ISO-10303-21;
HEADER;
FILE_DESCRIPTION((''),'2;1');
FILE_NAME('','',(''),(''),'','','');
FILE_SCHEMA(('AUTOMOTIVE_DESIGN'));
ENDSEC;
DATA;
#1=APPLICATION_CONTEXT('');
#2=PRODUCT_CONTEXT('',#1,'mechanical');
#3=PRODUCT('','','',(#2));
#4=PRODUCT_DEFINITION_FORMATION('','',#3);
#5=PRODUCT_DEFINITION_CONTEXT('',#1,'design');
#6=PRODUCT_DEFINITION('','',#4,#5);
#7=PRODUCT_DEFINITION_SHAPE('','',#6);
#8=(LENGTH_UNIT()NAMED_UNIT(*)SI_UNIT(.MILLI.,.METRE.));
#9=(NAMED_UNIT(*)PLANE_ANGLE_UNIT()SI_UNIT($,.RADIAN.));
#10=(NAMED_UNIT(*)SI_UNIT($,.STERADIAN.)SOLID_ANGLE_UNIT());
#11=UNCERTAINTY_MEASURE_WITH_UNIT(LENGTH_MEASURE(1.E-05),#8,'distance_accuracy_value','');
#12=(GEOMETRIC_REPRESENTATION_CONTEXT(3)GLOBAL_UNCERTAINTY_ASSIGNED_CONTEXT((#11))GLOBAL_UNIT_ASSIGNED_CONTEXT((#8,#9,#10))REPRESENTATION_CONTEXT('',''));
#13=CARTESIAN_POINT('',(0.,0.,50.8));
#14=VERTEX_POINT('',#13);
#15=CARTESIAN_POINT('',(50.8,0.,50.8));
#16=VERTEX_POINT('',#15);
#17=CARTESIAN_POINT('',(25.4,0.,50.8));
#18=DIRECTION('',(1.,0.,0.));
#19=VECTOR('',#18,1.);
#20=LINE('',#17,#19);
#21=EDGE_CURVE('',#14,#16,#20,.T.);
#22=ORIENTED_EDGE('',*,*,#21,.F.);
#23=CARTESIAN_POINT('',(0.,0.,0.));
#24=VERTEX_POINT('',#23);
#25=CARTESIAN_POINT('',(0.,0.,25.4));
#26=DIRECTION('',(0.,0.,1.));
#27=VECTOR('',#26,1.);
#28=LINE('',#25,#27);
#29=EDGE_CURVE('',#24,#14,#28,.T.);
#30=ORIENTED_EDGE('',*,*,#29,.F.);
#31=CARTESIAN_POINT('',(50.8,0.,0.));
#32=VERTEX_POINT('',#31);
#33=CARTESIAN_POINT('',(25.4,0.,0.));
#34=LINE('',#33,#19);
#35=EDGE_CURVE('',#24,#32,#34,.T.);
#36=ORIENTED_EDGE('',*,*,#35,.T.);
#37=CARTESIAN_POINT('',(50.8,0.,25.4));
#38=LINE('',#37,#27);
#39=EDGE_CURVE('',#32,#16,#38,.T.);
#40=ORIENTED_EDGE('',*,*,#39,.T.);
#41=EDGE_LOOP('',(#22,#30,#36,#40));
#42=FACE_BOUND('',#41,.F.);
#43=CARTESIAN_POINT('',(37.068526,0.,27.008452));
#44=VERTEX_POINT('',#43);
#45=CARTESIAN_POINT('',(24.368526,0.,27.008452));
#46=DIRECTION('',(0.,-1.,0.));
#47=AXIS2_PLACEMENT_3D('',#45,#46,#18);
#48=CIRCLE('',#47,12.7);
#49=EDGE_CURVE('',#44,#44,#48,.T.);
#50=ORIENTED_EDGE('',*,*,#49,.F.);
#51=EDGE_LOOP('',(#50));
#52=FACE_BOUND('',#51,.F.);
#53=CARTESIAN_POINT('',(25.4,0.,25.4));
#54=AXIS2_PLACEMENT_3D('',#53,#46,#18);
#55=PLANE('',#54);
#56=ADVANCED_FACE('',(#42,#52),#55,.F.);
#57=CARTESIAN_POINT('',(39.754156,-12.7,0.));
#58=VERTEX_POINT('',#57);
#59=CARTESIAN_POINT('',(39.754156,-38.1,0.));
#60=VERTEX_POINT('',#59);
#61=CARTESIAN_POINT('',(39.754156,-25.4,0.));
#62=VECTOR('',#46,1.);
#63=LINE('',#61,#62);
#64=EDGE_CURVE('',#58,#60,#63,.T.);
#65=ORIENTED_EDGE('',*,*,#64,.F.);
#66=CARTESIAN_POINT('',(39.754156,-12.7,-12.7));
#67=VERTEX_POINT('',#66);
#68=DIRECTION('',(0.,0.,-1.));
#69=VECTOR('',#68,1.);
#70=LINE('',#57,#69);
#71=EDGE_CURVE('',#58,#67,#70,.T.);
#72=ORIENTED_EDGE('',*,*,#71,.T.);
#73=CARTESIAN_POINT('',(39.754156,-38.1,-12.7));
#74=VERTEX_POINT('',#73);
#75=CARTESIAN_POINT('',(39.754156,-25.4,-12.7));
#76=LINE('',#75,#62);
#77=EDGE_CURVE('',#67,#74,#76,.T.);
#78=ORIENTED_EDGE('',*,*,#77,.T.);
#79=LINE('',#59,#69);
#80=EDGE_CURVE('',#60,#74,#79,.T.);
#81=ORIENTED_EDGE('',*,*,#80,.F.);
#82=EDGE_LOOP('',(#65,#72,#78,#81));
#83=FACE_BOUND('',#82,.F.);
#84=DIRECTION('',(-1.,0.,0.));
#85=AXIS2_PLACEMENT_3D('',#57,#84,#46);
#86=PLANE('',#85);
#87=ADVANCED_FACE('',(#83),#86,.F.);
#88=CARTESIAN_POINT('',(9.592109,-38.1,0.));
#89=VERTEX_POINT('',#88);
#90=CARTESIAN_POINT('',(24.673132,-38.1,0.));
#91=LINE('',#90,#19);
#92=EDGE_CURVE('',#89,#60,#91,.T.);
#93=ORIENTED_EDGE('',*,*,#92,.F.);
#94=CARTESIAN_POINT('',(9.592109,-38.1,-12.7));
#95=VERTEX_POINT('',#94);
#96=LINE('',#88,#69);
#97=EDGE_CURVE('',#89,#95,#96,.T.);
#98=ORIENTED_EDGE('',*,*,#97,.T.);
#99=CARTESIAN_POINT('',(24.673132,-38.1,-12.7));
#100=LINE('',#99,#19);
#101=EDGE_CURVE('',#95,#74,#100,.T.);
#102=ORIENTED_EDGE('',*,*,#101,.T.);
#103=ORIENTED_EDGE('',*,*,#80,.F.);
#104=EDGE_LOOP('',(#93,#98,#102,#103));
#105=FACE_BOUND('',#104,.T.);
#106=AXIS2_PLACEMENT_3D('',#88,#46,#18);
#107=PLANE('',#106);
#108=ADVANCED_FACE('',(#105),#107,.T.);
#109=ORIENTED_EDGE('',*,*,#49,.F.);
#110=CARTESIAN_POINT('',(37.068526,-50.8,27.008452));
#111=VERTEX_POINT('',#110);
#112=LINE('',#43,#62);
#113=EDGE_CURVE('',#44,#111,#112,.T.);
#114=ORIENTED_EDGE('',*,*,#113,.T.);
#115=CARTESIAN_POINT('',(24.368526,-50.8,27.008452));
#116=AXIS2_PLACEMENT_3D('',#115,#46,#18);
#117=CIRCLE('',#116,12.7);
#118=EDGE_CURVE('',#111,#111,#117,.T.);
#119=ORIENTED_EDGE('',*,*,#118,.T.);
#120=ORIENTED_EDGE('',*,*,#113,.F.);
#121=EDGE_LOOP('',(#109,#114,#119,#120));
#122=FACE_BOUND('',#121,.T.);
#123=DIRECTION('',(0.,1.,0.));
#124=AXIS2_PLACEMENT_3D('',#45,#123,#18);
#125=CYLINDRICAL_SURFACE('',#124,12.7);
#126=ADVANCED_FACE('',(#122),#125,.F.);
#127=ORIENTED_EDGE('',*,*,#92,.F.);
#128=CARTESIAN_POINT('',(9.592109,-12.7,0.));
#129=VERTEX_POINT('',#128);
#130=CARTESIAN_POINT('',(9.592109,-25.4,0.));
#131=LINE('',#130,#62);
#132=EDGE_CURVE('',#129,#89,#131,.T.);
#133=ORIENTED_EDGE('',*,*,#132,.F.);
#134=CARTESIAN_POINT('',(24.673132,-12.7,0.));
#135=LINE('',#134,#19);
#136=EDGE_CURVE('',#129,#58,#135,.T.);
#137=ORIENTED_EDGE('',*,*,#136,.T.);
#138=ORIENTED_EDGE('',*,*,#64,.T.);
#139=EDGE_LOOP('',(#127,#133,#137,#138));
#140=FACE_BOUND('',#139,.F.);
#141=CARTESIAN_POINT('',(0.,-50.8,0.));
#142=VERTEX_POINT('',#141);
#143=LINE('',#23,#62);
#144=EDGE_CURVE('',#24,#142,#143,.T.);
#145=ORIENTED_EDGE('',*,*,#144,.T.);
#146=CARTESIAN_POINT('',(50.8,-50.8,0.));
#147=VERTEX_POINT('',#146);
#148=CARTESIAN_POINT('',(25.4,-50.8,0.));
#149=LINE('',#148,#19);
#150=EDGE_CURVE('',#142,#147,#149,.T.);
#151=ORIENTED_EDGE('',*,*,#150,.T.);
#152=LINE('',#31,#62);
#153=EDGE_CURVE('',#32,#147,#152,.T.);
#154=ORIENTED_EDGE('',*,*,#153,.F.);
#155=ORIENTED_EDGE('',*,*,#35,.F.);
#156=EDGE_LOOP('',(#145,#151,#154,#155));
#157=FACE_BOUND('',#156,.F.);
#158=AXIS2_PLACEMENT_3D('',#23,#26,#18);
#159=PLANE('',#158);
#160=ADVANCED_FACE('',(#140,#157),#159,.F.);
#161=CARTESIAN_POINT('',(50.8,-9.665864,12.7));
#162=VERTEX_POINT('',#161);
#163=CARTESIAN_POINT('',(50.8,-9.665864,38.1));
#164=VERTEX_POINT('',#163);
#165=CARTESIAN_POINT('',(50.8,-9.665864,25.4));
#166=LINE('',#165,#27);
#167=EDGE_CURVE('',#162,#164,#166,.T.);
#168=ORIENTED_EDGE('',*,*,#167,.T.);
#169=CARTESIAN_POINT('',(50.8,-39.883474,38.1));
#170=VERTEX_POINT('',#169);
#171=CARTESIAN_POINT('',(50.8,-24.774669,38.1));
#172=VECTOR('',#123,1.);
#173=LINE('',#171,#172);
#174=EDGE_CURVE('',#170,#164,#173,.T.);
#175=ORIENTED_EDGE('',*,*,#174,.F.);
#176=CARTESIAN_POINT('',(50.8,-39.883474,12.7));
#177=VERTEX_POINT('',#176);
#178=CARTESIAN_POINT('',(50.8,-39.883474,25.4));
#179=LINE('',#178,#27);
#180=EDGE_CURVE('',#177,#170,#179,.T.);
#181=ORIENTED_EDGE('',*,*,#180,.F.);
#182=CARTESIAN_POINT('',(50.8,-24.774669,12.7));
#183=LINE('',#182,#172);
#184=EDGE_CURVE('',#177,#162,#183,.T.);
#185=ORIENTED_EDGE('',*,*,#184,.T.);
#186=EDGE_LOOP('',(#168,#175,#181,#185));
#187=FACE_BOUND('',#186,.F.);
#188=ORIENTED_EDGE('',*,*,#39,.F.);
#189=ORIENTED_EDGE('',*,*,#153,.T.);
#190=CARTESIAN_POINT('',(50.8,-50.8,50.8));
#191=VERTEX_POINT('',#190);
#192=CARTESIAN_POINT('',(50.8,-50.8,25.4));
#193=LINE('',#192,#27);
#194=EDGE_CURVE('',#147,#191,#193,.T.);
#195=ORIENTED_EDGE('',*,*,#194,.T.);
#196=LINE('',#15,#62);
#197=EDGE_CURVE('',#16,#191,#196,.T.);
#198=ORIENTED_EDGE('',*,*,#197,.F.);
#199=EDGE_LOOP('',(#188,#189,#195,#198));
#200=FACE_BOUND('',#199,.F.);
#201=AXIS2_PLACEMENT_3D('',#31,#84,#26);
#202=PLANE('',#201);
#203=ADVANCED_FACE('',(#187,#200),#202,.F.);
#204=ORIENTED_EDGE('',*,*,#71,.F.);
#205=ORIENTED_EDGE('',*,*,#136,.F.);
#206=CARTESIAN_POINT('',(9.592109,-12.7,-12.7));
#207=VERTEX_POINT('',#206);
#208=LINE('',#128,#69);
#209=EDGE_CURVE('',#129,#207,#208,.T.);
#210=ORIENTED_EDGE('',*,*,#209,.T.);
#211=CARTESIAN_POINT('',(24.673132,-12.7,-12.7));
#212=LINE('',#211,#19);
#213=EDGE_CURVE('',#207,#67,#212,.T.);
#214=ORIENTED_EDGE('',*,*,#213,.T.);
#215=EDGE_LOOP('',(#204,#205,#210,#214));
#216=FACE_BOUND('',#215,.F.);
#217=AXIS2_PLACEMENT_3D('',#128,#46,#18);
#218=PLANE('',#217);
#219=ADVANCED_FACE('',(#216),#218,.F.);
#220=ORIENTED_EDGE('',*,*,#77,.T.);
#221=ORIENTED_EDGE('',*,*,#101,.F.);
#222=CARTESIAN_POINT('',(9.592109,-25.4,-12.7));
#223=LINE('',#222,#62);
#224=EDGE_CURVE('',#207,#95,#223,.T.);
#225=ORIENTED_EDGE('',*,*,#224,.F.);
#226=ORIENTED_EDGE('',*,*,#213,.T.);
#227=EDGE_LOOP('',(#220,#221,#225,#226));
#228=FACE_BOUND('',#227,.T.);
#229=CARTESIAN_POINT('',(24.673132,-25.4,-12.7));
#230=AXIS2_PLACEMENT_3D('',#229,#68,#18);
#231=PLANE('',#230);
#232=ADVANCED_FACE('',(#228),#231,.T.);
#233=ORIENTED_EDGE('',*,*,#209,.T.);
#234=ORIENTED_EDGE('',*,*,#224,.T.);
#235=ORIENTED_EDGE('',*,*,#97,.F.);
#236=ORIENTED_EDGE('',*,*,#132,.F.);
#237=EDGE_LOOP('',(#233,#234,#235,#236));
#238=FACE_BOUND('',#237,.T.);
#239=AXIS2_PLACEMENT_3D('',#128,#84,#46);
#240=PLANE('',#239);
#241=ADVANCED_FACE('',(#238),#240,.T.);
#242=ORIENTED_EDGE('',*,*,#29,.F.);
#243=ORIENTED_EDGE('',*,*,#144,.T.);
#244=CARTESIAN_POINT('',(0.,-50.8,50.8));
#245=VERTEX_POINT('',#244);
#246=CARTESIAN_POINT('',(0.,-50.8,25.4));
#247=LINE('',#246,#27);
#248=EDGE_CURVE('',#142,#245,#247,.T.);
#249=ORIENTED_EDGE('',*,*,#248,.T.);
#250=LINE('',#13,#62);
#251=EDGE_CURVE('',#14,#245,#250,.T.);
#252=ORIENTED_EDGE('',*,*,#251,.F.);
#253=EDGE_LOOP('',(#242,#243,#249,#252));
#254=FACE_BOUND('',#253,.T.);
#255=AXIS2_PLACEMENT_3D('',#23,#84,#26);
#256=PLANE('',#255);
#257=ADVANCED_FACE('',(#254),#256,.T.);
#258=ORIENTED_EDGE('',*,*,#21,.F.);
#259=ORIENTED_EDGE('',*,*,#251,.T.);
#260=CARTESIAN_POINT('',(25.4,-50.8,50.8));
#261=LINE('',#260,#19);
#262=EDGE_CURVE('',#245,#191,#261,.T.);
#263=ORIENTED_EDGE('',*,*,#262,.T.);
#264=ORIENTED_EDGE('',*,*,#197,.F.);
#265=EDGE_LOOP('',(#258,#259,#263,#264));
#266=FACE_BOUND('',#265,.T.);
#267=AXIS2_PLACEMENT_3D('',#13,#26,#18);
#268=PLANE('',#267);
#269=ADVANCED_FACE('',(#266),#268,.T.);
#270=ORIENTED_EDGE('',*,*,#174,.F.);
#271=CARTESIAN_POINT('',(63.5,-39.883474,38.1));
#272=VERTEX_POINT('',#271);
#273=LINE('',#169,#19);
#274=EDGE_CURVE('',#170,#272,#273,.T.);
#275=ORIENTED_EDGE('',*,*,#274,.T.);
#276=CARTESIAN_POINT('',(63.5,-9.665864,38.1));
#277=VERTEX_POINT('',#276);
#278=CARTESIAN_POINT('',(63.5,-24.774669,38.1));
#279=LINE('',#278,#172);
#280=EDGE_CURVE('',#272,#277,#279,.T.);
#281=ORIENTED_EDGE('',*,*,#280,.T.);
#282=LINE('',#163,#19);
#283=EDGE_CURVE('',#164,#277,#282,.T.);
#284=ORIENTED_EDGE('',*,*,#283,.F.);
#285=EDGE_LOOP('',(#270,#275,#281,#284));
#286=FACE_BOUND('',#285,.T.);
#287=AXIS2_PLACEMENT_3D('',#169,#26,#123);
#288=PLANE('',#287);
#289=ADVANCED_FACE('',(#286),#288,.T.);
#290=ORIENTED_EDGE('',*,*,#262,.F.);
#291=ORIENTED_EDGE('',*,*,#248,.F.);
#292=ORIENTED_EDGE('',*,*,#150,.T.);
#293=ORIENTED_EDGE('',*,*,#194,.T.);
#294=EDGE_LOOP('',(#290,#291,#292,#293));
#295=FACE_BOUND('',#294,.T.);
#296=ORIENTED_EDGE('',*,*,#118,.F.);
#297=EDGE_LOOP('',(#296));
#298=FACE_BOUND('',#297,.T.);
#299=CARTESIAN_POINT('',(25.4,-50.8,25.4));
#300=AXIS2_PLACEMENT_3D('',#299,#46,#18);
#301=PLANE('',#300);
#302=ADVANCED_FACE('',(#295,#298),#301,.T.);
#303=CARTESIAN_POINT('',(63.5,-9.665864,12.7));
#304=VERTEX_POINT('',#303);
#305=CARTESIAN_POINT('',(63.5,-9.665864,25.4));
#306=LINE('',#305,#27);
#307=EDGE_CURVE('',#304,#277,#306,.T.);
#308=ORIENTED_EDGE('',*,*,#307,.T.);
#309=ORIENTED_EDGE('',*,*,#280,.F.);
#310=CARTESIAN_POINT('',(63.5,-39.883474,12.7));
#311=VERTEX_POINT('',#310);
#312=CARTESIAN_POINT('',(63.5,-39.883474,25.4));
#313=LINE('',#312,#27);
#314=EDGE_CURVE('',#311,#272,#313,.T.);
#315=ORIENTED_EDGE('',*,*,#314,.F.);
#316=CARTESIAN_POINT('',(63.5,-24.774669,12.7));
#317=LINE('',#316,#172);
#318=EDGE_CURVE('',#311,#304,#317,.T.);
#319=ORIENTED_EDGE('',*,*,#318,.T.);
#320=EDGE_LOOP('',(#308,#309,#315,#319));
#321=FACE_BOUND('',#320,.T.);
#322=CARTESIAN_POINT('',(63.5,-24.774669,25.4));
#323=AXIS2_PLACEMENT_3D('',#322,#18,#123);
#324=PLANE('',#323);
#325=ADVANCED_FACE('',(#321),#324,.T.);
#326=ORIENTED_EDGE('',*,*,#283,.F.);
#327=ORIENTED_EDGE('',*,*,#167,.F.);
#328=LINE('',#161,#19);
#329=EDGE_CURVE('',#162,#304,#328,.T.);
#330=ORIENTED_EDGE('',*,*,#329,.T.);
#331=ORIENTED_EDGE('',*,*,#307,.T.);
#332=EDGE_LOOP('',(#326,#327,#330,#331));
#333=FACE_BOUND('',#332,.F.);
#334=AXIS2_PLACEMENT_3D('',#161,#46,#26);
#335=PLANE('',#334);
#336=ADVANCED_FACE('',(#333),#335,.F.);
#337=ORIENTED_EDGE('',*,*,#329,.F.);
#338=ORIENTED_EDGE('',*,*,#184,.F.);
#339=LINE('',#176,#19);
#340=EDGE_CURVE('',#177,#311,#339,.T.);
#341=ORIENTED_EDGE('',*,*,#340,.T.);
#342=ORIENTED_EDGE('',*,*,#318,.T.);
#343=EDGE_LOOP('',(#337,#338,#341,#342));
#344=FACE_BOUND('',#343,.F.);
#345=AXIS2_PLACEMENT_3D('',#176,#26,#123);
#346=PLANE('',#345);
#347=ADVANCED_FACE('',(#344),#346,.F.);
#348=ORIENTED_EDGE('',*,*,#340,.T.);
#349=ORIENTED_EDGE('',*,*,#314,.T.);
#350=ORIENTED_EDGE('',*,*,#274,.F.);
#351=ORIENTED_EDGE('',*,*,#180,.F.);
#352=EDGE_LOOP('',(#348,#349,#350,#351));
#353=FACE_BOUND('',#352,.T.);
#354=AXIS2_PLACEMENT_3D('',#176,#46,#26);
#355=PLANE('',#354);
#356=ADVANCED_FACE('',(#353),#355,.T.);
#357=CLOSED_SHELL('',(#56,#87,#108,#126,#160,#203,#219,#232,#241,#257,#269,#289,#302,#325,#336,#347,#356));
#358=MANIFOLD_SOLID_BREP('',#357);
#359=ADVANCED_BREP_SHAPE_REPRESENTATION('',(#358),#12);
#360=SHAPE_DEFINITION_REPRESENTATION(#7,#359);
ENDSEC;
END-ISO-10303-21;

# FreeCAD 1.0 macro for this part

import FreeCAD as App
import Part
import Sketcher
from FreeCAD import Vector
Q = App.Units.Quantity


def add_polygon(sketch, points):
    """Adds a closed chain of lines whose ends are joined by coincident constraints."""
    first, n = sketch.GeometryCount, len(points)
    for a, b in zip(points, points[1:] + points[:1]):
        sketch.addGeometry(Part.LineSegment(App.Vector(*a, 0), App.Vector(*b, 0)), False)
    for i in range(n):
        sketch.addConstraint(Sketcher.Constraint("Coincident", first + i, 2, first + (i + 1) % n, 1))

doc = App.newDocument("Part")
body = doc.addObject("PartDesign::Body", "Body")

# Sketch on XZ plane
sketch1 = body.newObject("Sketcher::SketchObject", "Sketch")
sketch1.AttachmentSupport = (doc.getObject("XZ_Plane"), [""])
sketch1.MapMode = "FlatFace"
add_polygon(sketch1, [(0, 51), (0, 0), (51, 0), (51, 51)])  # lines 0-3
sketch1.addGeometry(Part.Circle(Vector(24, 27, 0), Vector(0, 0, 1), 13), False)  # 4
sketch1.addConstraint(Sketcher.Constraint("Vertical", 0))
sketch1.addConstraint(Sketcher.Constraint("Horizontal", 1))
sketch1.addConstraint(Sketcher.Constraint("Vertical", 2))
sketch1.addConstraint(Sketcher.Constraint("Horizontal", 3))
sketch1.addConstraint(Sketcher.Constraint("Coincident", 0, 2, -1, 1))
sketch1.addConstraint(Sketcher.Constraint("Equal", 3, 0))
sketch1.addConstraint(Sketcher.Constraint("Diameter", 4, Q("1 in")))
sketch1.addConstraint(Sketcher.Constraint("DistanceX", 1, 1, 1, 2, Q("2 in")))
sketch1.addConstraint(Sketcher.Constraint("DistanceY", -1, 1, 4, 3, Q("27.008452 mm")))
sketch1.addConstraint(Sketcher.Constraint("DistanceX", -1, 1, 4, 3, Q("24.368526 mm")))
pad1 = body.newObject("PartDesign::Pad", "Pad")
pad1.Profile = sketch1
pad1.Length = Q("2 in")

# Sketch on XY plane
sketch2 = body.newObject("Sketcher::SketchObject", "Sketch001")
sketch2.AttachmentSupport = (doc.getObject("XY_Plane"), [""])
sketch2.MapMode = "FlatFace"
add_polygon(sketch2, [(10, -38), (10, -13), (40, -13), (40, -38)])  # lines 0-3
sketch2.addConstraint(Sketcher.Constraint("Vertical", 0))
sketch2.addConstraint(Sketcher.Constraint("Horizontal", 1))
sketch2.addConstraint(Sketcher.Constraint("Vertical", 2))
sketch2.addConstraint(Sketcher.Constraint("Horizontal", 3))
sketch2.addConstraint(Sketcher.Constraint("DistanceY", 0, 1, 0, 2, Q("1 in")))
sketch2.addConstraint(Sketcher.Constraint("DistanceY", 0, 2, -1, 1, Q("0.5 in")))
sketch2.addConstraint(Sketcher.Constraint("DistanceX", 1, 1, 1, 2, Q("30.162047 mm")))
sketch2.addConstraint(Sketcher.Constraint("DistanceX", -1, 1, 0, 2, Q("9.592109 mm")))
pad2 = body.newObject("PartDesign::Pad", "Pad001")
pad2.Profile = sketch2
pad2.Length = Q("0.5 in")
pad2.Reversed = True

# Sketch on YZ plane
sketch3 = body.newObject("Sketcher::SketchObject", "Sketch002")
sketch3.AttachmentSupport = (doc.getObject("YZ_Plane"), [""])
sketch3.MapMode = "FlatFace"
sketch3.AttachmentOffset = App.Placement(Vector(0, 0, 2 * 25.4), App.Rotation())
add_polygon(sketch3, [(-40, 38), (-40, 13), (-10, 13), (-10, 38)])  # lines 0-3
sketch3.addConstraint(Sketcher.Constraint("Vertical", 0))
sketch3.addConstraint(Sketcher.Constraint("Horizontal", 1))
sketch3.addConstraint(Sketcher.Constraint("Vertical", 2))
sketch3.addConstraint(Sketcher.Constraint("Horizontal", 3))
sketch3.addConstraint(Sketcher.Constraint("DistanceY", 0, 2, 0, 1, Q("1 in")))
sketch3.addConstraint(Sketcher.Constraint("DistanceY", -1, 1, 0, 2, Q("0.5 in")))
sketch3.addConstraint(Sketcher.Constraint("DistanceX", 1, 1, 1, 2, Q("30.217611 mm")))
sketch3.addConstraint(Sketcher.Constraint("DistanceX", 0, 2, -1, 1, Q("39.883474 mm")))
pad3 = body.newObject("PartDesign::Pad", "Pad002")
pad3.Profile = sketch3
pad3.Length = Q("0.5 in")

doc.recompute()
